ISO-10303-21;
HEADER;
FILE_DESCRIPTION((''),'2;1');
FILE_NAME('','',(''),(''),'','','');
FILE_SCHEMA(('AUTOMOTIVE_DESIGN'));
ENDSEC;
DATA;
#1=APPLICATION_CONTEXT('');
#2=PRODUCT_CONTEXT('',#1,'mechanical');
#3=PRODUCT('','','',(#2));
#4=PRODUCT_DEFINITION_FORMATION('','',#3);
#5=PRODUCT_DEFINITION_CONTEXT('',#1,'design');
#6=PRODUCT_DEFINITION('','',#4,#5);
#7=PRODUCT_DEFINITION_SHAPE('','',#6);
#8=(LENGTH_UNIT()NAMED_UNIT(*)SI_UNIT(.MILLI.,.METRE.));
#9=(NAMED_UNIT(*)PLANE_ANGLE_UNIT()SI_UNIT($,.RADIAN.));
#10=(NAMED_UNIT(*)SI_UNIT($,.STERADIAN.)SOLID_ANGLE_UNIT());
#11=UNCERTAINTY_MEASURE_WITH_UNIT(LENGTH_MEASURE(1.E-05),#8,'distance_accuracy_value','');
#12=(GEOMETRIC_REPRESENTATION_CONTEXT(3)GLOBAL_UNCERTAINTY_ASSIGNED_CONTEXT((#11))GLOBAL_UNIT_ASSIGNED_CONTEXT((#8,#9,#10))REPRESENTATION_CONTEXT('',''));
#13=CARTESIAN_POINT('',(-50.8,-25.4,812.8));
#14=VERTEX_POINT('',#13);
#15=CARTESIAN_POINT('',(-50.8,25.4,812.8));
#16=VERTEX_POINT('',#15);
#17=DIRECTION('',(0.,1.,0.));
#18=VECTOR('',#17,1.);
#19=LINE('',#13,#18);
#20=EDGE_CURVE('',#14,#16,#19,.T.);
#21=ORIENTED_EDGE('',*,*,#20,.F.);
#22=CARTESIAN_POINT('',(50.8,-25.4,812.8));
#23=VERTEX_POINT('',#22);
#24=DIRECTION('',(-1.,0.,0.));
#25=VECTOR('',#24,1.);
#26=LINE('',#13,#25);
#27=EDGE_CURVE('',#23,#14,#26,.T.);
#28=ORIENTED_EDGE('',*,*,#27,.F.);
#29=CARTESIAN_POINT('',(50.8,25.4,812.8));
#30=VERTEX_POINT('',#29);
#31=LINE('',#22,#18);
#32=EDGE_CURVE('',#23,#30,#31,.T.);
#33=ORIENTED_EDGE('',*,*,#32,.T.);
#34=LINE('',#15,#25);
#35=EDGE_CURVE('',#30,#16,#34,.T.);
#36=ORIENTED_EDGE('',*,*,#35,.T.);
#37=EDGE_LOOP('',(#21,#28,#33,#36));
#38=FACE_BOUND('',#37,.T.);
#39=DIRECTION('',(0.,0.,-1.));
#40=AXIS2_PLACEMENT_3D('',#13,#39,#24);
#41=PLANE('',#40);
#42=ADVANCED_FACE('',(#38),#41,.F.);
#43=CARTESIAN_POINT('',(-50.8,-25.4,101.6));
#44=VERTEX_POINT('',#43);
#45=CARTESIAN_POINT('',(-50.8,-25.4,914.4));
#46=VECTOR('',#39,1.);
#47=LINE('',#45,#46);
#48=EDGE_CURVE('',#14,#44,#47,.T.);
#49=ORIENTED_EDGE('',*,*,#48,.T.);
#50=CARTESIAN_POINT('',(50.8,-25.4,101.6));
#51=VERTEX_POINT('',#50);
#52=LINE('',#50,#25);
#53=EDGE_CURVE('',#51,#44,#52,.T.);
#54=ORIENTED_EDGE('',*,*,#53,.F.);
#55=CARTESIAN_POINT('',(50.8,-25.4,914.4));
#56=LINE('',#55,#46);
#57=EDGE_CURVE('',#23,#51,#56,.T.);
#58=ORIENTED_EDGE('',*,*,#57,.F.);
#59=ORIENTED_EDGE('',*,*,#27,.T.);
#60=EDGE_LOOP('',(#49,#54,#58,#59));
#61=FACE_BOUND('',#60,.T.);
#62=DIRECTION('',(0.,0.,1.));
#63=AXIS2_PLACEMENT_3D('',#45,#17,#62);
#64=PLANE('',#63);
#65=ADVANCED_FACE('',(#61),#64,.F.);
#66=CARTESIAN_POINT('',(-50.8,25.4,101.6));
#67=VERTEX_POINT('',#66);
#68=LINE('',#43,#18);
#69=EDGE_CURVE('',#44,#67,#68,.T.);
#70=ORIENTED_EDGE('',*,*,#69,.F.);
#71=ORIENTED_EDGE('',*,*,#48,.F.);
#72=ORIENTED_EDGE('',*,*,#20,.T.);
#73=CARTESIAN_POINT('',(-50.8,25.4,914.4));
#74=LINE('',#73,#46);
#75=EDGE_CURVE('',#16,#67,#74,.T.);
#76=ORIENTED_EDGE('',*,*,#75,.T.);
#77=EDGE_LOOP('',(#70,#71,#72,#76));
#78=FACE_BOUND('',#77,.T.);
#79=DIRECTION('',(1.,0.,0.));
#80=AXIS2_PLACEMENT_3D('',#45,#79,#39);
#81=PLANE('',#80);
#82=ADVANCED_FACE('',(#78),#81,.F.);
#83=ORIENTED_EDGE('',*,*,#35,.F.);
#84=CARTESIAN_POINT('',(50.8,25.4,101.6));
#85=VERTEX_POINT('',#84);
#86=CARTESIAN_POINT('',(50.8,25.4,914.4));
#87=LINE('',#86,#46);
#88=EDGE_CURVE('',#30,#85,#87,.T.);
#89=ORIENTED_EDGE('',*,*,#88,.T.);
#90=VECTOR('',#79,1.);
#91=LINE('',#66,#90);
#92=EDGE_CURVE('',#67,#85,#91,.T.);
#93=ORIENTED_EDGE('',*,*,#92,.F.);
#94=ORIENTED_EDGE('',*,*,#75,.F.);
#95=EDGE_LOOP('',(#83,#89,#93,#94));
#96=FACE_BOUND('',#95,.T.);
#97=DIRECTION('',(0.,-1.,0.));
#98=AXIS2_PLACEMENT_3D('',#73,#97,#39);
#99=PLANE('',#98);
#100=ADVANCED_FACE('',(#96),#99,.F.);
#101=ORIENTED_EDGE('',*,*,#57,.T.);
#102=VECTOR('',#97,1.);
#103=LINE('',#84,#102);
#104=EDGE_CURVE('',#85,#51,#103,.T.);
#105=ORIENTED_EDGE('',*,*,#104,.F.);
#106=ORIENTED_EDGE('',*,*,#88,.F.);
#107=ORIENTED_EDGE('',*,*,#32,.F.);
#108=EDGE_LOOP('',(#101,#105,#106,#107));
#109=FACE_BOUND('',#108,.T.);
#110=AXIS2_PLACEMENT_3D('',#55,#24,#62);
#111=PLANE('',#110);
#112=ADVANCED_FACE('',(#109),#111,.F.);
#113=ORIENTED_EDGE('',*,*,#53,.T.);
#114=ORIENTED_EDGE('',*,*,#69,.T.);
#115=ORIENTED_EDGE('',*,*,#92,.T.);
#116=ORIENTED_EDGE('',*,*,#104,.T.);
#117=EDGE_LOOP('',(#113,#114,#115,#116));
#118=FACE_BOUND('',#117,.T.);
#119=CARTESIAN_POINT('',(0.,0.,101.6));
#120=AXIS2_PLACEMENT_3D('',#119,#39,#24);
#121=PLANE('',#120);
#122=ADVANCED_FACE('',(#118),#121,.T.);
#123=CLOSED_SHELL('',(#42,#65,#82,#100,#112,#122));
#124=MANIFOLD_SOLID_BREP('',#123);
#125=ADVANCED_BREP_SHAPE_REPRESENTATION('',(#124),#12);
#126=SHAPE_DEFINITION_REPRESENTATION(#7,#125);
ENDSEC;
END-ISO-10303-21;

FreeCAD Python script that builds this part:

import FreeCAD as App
import Part
import Sketcher
from FreeCAD import Vector
Q = App.Units.Quantity


def add_polygon(sketch, points):
    """Adds a closed chain of lines whose ends are joined by coincident constraints."""
    first, n = sketch.GeometryCount, len(points)
    for a, b in zip(points, points[1:] + points[:1]):
        sketch.addGeometry(Part.LineSegment(App.Vector(*a, 0), App.Vector(*b, 0)), False)
    for i in range(n):
        sketch.addConstraint(Sketcher.Constraint("Coincident", first + i, 2, first + (i + 1) % n, 1))

doc = App.newDocument("Part")
body = doc.addObject("PartDesign::Body", "Body")

# Sketch on XY plane
sketch1 = body.newObject("Sketcher::SketchObject", "Sketch")
sketch1.AttachmentSupport = (doc.getObject("XY_Plane"), [""])
sketch1.MapMode = "FlatFace"
add_polygon(sketch1, [(-51, 25), (-51, -25), (51, -25), (51, 25)])  # lines 0-3
sketch1.addConstraint([
    Sketcher.Constraint("Vertical", 0),
    Sketcher.Constraint("Horizontal", 1),
    Sketcher.Constraint("Vertical", 2),
    Sketcher.Constraint("Horizontal", 3),
    Sketcher.Constraint("Symmetric", 0, 2, 2, 2, -1, 1),
    Sketcher.Constraint("DistanceX", 1, 1, 1, 2, Q("4 in")),
    Sketcher.Constraint("DistanceY", 0, 2, 0, 1, Q("2 in")),
])
pad1 = body.newObject("PartDesign::Pad", "Pad")
pad1.Profile = sketch1
pad1.Length = Q("36 in")

# Sketch on XY plane
sketch2 = body.newObject("Sketcher::SketchObject", "Sketch001")
sketch2.AttachmentSupport = (doc.getObject("XY_Plane"), [""])
sketch2.MapMode = "FlatFace"
add_polygon(sketch2, [(51, 25), (51, -25), (-51, -25), (-51, 25)])  # lines 0-3
sketch2.addConstraint([
    Sketcher.Constraint("Vertical", 0),
    Sketcher.Constraint("Horizontal", 1),
    Sketcher.Constraint("Vertical", 2),
    Sketcher.Constraint("Horizontal", 3),
    Sketcher.Constraint("Symmetric", 0, 2, 2, 2, -1, 1),
    Sketcher.Constraint("DistanceX", 1, 2, 1, 1, Q("4 in")),
    Sketcher.Constraint("DistanceY", 0, 2, 0, 1, Q("2 in")),
])
pocket1 = body.newObject("PartDesign::Pocket", "Pocket")
pocket1.Profile = sketch2
pocket1.Length = Q("4 in")
pocket1.Reversed = True

# Sketch on XZ plane
sketch3 = body.newObject("Sketcher::SketchObject", "Sketch002")
sketch3.AttachmentSupport = (doc.getObject("XZ_Plane"), [""])
sketch3.MapMode = "FlatFace"
sketch3.AttachmentOffset = App.Placement(Vector(0, 0, -1 * 25.4), App.Rotation())
add_polygon(sketch3, [(-51, 813), (-51, 914), (51, 914), (51, 813)])  # lines 0-3
sketch3.addConstraint([
    Sketcher.Constraint("Vertical", 0),
    Sketcher.Constraint("Horizontal", 1),
    Sketcher.Constraint("Vertical", 2),
    Sketcher.Constraint("Horizontal", 3),
    Sketcher.Constraint("Equal", 3, 0),
    Sketcher.Constraint("DistanceX", 1, 1, 1, 2, Q("4 in")),
    Sketcher.Constraint("DistanceX", 0, 2, -1, 1, Q("2 in")),
    Sketcher.Constraint("DistanceY", -1, 1, 0, 2, Q("36 in")),
])
pocket2 = body.newObject("PartDesign::Pocket", "Pocket001")
pocket2.Profile = sketch3
pocket2.Length = Q("2 in")
pocket2.Reversed = True

doc.recompute()
